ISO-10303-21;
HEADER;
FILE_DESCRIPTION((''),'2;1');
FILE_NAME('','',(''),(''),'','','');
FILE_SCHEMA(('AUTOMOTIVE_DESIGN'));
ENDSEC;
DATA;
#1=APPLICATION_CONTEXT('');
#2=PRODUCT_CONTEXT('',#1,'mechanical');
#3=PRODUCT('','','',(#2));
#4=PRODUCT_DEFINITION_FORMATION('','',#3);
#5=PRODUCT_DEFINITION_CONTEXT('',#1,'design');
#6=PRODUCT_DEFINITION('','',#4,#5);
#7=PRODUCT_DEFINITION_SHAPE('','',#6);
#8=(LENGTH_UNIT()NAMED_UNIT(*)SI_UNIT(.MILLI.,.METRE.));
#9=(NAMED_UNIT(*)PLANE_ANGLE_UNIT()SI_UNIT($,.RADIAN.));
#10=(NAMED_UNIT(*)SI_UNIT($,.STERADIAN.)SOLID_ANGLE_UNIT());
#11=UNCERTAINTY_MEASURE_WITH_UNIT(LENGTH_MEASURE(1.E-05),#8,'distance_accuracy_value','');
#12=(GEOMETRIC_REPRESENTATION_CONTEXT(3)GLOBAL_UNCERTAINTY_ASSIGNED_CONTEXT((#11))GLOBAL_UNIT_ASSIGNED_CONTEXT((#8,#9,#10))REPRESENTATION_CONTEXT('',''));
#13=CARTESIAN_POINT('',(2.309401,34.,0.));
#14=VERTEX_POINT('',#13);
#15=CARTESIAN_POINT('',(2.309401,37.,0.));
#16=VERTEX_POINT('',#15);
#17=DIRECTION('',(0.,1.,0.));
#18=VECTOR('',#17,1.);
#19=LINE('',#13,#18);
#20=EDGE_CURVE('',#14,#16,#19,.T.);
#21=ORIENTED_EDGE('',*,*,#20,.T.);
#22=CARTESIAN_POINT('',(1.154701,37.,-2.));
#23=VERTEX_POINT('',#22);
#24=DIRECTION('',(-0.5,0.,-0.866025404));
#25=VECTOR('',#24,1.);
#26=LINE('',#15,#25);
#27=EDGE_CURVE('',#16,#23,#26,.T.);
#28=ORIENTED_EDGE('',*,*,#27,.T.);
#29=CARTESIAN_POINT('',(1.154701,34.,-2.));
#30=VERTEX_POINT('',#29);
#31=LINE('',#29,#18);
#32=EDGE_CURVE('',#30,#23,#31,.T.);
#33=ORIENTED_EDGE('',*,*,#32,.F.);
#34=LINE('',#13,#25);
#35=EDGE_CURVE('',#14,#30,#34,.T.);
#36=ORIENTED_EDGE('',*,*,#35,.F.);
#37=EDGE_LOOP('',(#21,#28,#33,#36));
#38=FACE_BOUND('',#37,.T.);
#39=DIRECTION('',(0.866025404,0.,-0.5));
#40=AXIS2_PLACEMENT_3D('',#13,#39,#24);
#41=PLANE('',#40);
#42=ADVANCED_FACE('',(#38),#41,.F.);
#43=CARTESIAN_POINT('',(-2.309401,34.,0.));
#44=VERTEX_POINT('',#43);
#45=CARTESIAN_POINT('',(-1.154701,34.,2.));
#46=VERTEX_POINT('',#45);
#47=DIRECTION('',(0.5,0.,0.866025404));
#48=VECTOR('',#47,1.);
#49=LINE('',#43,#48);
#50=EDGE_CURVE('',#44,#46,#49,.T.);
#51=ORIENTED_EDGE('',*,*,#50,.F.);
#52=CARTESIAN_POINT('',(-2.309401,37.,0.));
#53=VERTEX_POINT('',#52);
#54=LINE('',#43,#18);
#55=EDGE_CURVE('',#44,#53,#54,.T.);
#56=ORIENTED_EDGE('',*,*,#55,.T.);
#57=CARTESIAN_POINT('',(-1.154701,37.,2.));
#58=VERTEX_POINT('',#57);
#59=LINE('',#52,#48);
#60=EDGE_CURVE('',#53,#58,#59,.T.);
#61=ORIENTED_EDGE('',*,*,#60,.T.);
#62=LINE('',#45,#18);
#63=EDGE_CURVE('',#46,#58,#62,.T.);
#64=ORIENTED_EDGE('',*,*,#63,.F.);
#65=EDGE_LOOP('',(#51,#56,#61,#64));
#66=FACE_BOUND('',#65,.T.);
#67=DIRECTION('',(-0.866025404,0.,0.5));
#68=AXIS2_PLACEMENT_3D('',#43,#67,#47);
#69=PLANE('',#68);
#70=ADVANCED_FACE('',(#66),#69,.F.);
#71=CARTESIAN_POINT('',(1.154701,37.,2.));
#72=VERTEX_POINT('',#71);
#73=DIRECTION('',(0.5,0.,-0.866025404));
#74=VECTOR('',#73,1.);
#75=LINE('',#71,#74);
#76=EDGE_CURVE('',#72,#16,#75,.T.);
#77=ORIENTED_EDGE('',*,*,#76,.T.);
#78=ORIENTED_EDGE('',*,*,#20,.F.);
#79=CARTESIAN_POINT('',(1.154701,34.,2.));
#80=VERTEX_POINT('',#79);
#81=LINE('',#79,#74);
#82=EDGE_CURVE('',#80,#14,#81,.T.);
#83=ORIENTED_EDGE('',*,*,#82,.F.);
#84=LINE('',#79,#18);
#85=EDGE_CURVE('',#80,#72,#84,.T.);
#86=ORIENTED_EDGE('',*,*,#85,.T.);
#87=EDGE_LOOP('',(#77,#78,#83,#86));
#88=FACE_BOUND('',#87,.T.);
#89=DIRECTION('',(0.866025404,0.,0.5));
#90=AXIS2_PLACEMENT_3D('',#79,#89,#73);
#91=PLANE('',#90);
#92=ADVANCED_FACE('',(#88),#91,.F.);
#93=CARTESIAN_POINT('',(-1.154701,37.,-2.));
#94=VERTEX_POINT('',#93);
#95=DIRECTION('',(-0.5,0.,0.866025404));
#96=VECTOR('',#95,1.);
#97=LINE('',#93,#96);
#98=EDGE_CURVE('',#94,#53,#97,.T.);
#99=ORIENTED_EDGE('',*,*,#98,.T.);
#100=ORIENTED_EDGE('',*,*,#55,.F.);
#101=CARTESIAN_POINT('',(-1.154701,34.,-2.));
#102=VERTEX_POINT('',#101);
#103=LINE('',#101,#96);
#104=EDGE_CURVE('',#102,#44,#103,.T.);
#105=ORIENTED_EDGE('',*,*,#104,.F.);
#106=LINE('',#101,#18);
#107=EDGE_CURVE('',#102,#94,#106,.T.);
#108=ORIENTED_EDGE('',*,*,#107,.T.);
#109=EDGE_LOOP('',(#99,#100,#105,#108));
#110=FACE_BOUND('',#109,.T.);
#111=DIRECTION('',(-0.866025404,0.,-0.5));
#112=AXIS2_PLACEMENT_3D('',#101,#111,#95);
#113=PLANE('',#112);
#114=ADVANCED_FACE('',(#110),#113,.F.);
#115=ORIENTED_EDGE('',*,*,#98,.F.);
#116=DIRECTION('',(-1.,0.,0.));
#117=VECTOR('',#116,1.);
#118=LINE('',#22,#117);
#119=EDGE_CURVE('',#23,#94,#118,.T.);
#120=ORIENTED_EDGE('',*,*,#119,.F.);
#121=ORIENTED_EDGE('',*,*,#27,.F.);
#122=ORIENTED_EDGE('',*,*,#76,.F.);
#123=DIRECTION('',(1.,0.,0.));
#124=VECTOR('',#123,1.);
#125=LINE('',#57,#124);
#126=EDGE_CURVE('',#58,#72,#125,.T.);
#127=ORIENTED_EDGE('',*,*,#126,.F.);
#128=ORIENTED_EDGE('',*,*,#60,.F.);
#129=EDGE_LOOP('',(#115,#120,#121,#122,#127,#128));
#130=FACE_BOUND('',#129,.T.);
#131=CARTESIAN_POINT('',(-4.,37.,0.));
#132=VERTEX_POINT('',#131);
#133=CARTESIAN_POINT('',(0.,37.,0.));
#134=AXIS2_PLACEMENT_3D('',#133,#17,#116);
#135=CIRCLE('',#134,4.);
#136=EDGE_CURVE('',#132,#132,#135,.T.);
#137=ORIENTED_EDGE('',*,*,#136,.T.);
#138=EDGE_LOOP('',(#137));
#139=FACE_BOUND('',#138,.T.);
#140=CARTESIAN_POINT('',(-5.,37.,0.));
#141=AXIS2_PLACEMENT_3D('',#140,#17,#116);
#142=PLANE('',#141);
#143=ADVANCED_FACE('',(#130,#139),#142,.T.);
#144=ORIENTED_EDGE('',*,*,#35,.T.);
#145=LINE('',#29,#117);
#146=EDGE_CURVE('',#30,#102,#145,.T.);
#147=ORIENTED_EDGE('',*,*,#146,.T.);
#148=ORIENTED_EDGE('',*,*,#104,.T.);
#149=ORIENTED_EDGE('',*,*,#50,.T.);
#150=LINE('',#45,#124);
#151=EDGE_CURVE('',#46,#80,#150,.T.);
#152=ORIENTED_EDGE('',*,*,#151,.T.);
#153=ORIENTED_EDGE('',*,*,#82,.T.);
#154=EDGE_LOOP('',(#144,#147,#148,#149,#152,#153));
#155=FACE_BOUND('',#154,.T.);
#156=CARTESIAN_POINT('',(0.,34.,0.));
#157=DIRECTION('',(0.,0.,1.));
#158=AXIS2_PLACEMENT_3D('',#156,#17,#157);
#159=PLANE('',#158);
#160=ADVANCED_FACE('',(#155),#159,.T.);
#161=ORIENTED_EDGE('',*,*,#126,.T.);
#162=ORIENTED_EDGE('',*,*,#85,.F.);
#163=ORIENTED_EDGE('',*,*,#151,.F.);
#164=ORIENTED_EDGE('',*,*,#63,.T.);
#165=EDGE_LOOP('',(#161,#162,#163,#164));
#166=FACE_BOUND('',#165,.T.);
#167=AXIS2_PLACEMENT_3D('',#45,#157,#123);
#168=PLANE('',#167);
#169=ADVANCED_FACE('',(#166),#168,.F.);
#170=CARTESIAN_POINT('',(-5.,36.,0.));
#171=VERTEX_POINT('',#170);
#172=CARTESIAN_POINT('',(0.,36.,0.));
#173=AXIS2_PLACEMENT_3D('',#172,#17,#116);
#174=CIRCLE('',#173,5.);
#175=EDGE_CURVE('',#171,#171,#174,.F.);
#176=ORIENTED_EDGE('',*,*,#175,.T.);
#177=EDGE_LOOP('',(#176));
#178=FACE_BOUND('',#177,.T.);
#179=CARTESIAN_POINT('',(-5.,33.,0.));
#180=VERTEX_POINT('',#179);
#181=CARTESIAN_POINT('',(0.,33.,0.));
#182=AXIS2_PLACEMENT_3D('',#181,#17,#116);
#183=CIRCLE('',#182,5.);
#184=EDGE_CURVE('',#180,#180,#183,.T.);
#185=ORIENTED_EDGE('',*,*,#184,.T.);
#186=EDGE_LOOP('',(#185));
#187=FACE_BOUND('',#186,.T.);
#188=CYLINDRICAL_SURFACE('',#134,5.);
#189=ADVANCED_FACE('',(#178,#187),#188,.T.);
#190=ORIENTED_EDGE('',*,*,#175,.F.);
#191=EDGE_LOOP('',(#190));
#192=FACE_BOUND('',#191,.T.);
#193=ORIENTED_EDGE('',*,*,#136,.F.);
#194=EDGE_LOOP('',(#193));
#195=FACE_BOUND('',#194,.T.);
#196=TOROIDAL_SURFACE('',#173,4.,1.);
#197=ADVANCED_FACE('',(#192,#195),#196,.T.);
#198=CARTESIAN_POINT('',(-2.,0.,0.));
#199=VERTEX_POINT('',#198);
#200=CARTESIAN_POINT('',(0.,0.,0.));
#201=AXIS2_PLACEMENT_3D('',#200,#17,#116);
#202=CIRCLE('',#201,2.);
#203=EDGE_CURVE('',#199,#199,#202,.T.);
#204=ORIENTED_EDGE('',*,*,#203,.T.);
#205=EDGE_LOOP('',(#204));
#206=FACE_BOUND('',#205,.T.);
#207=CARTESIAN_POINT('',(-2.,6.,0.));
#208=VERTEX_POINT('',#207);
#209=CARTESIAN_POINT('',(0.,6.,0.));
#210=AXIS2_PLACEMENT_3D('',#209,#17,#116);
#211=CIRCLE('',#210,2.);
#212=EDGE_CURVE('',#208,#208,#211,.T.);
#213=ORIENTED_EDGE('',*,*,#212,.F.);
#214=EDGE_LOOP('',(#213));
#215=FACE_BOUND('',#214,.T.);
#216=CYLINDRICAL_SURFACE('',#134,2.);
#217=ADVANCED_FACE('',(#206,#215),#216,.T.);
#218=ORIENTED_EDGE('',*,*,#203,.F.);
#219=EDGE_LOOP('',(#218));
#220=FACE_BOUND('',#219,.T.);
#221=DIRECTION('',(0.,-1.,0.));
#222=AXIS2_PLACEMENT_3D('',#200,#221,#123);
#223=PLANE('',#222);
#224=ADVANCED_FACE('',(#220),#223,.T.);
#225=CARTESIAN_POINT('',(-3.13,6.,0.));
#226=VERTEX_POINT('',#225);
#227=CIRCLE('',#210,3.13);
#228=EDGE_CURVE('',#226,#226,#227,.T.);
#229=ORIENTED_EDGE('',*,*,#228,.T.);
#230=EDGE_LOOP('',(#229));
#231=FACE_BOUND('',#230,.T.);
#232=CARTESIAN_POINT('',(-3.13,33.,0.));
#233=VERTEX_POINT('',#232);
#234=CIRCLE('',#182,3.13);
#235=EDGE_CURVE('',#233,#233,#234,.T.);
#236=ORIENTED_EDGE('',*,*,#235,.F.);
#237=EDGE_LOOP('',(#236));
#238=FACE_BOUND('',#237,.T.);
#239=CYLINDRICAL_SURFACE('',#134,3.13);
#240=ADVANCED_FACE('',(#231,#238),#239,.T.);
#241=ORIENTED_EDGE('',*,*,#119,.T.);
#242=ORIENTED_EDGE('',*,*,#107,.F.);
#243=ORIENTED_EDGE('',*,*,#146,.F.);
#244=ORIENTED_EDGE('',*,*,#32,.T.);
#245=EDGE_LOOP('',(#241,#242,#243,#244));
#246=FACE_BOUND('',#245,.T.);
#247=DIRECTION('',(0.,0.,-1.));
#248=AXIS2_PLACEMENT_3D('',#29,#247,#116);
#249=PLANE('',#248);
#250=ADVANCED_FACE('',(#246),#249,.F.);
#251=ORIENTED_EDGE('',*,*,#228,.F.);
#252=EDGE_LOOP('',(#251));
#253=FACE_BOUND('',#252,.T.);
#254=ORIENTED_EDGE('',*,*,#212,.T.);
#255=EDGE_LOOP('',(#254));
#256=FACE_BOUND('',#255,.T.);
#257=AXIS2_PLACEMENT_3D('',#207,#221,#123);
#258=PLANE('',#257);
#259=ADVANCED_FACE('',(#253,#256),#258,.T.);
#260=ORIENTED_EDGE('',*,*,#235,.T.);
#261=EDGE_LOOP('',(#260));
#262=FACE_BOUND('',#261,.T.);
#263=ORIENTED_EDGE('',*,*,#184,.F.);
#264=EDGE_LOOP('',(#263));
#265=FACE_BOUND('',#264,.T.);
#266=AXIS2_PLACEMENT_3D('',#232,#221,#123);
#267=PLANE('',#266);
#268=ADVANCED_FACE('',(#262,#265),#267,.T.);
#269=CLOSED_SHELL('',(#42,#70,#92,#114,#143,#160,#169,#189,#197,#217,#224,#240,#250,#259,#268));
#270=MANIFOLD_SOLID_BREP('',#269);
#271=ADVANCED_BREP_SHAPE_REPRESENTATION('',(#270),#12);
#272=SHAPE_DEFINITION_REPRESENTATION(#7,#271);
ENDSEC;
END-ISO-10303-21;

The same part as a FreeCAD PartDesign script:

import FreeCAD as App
import Part
import Sketcher

V = App.Vector
Q = App.Units.Quantity


def edges_at(feature, points):
    """Names of the edges that pass closest to the given points."""
    edges = feature.Shape.Edges
    near = lambda p: min(range(len(edges)), key=lambda i: edges[i].distToShape(Part.Vertex(*p))[0])
    return sorted({f"Edge{near(p) + 1}" for p in points})

doc = App.newDocument("Part")
body = doc.addObject("PartDesign::Body", "Body")

sketch1 = body.newObject("Sketcher::SketchObject", "Sketch")
sketch1.AttachmentSupport = (doc.getObject("XY_Plane"), [""])
sketch1.MapMode = "FlatFace"
sketch1.addGeometry([
    Part.LineSegment(V(-2, 0, 0), V(0, 0, 0)),
    Part.LineSegment(V(0, 0, 0), V(0, 37, 0)),
    Part.LineSegment(V(0, 37, 0), V(-5, 37, 0)),
    Part.LineSegment(V(-5, 37, 0), V(-5, 33, 0)),
    Part.LineSegment(V(-5, 33, 0), V(-3.13, 33, 0)),
    Part.LineSegment(V(-3.13, 33, 0), V(-3.13, 6, 0)),
    Part.LineSegment(V(-3.13, 6, 0), V(-2, 6, 0)),
    Part.LineSegment(V(-2, 6, 0), V(-2, 0, 0)),
], False)
sketch1.addConstraint([
    Sketcher.Constraint("Coincident", 0, 2, 1, 1),
    Sketcher.Constraint("Coincident", 1, 2, 2, 1),
    Sketcher.Constraint("Coincident", 2, 2, 3, 1),
    Sketcher.Constraint("Coincident", 3, 2, 4, 1),
    Sketcher.Constraint("Coincident", 4, 2, 5, 1),
    Sketcher.Constraint("Coincident", 5, 2, 6, 1),
    Sketcher.Constraint("Coincident", 6, 2, 7, 1),
    Sketcher.Constraint("Coincident", 7, 2, 0, 1),
    Sketcher.Constraint("Horizontal", 0),
    Sketcher.Constraint("Vertical", 1),
    Sketcher.Constraint("Horizontal", 2),
    Sketcher.Constraint("Vertical", 3),
    Sketcher.Constraint("Horizontal", 4),
    Sketcher.Constraint("Vertical", 5),
    Sketcher.Constraint("Horizontal", 6),
    Sketcher.Constraint("Vertical", 7),
    Sketcher.Constraint("Coincident", 0, 2, -1, 1),
    Sketcher.Constraint("DistanceX", 0, 1, 0, 2, Q("2 mm")),
    Sketcher.Constraint("DistanceX", 2, 2, 2, 1, Q("5 mm")),
    Sketcher.Constraint("DistanceY", 1, 1, 1, 2, Q("37 mm")),
    Sketcher.Constraint("DistanceY", 3, 2, 3, 1, Q("4 mm")),
    Sketcher.Constraint("DistanceY", 5, 2, 5, 1, Q("27 mm")),
    Sketcher.Constraint("DistanceX", 4, 1, 4, 2, Q("1.87 mm")),
])
revolution = body.newObject("PartDesign::Revolution", "Revolution")
revolution.Profile = sketch1
revolution.ReferenceAxis = (sketch1, ["V_Axis"])
revolution.Angle = 360

sketch2 = body.newObject("Sketcher::SketchObject", "Sketch001")
sketch2.AttachmentSupport = (doc.getObject("XZ_Plane"), [""])
sketch2.MapMode = "FlatFace"
sketch2.AttachmentOffset = App.Placement(V(0, 0, -37), App.Rotation())
sketch2.addGeometry([
    Part.LineSegment(V(-1.154701, 2, 0), V(1.154701, 2, 0)),
    Part.LineSegment(V(1.154701, 2, 0), V(2.309401, 0, 0)),
    Part.LineSegment(V(2.309401, 0, 0), V(1.154701, -2, 0)),
    Part.LineSegment(V(1.154701, -2, 0), V(-1.154701, -2, 0)),
    Part.LineSegment(V(-1.154701, -2, 0), V(-2.309401, 0, 0)),
    Part.LineSegment(V(-2.309401, 0, 0), V(-1.154701, 2, 0)),
], False)
sketch2.addConstraint([
    Sketcher.Constraint("Coincident", 0, 2, 1, 1),
    Sketcher.Constraint("Coincident", 1, 2, 2, 1),
    Sketcher.Constraint("Coincident", 2, 2, 3, 1),
    Sketcher.Constraint("Coincident", 3, 2, 4, 1),
    Sketcher.Constraint("Coincident", 4, 2, 5, 1),
    Sketcher.Constraint("Coincident", 5, 2, 0, 1),
    Sketcher.Constraint("Horizontal", 0),
    Sketcher.Constraint("Horizontal", 3),
    Sketcher.Constraint("Symmetric", 0, 2, 3, 2, -1, 1),
    Sketcher.Constraint("Symmetric", 1, 2, 4, 2, -1, 1),
    Sketcher.Constraint("PointOnObject", 1, 2, -1),
    Sketcher.Constraint("Parallel", 2, 5),
    Sketcher.Constraint("Vertical", 0, 2, 2, 2),
    Sketcher.Constraint("Angle", 1, Q("-60 deg")),
    Sketcher.Constraint("DistanceY", -1, 1, 0, 2, Q("2 mm")),
    Sketcher.Constraint("DistanceX", 0, 1, 0, 2, Q("2.309401 mm")),
])
pocket1 = body.newObject("PartDesign::Pocket", "Pocket")
pocket1.Profile = sketch2
pocket1.Length = 3
pocket1.Reversed = True
doc.recompute()

fillet = body.newObject("PartDesign::Fillet", "Fillet")
fillet.Base = (pocket1, edges_at(pocket1, [(5, 37, 0)]))
fillet.Radius = 1

doc.recompute()
